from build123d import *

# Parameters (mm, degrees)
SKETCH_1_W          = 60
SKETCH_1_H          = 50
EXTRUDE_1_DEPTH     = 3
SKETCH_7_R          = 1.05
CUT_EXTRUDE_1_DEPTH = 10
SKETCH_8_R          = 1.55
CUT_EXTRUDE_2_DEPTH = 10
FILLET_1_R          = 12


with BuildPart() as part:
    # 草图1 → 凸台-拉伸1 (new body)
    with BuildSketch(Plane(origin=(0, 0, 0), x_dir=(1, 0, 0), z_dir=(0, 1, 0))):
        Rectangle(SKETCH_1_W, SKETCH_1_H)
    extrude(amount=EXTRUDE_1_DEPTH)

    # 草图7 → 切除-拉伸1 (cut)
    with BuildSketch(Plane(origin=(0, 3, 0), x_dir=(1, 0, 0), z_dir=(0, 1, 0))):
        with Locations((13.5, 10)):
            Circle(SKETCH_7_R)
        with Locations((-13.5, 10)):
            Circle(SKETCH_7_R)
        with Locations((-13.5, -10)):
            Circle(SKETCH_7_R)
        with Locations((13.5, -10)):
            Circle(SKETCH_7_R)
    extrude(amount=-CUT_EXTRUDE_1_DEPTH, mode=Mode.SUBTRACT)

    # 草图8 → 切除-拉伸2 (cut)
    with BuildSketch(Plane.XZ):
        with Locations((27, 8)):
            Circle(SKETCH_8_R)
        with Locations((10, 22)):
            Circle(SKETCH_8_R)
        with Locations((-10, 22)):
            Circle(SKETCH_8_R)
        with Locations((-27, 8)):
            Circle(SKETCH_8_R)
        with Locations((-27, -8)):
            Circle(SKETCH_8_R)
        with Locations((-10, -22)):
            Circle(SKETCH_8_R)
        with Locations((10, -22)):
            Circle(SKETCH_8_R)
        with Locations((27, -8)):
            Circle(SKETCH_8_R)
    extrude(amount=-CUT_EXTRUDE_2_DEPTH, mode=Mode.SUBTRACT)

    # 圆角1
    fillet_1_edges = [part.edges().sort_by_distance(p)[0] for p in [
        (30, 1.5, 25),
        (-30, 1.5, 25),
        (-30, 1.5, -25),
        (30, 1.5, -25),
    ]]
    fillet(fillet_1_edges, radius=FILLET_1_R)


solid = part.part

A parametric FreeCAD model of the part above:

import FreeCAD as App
import Part
import Sketcher

V = App.Vector
Q = App.Units.Quantity


def edges_at(feature, points):
    """Names of the edges that pass closest to the given points."""
    edges = feature.Shape.Edges
    near = lambda p: min(range(len(edges)), key=lambda i: edges[i].distToShape(Part.Vertex(*p))[0])
    return sorted({f"Edge{near(p) + 1}" for p in points})


def add_polygon(sketch, points):
    """Adds a closed chain of lines whose ends are joined by coincident constraints."""
    first, n = sketch.GeometryCount, len(points)
    for a, b in zip(points, points[1:] + points[:1]):
        sketch.addGeometry(Part.LineSegment(App.Vector(*a, 0), App.Vector(*b, 0)), False)
    for i in range(n):
        sketch.addConstraint(Sketcher.Constraint("Coincident", first + i, 2, first + (i + 1) % n, 1))

doc = App.newDocument("Part")
params = doc.addObject("Spreadsheet::Sheet", "Params")
for row, (alias, value) in enumerate([
    ("sketch1_width", "60 mm"),
    ("sketch1_height", "50 mm"),
    ("pad1_length", "3 mm"),
    ("sketch2_diameter", "2.1 mm"),
    ("pocket1_length", "10 mm"),
    ("sketch3_diameter", "3.1 mm"),
    ("pocket2_length", "10 mm"),
    ("fillet_radius", "12 mm"),
], start=1):
    params.set(f"A{row}", alias)
    params.set(f"B{row}", "=" + value)
    params.setAlias(f"B{row}", alias)

body = doc.addObject("PartDesign::Body", "Body")

sketch1 = body.newObject("Sketcher::SketchObject", "Sketch")
sketch1.AttachmentSupport = (doc.getObject("XZ_Plane"), [""])
sketch1.MapMode = "FlatFace"
add_polygon(sketch1, [(-30, -25), (-30, 25), (30, 25), (30, -25)])
sketch1.addConstraint([
    Sketcher.Constraint("Vertical", 0),
    Sketcher.Constraint("Horizontal", 1),
    Sketcher.Constraint("Vertical", 2),
    Sketcher.Constraint("Horizontal", 3),
    Sketcher.Constraint("Symmetric", 0, 2, 2, 2, -1, 1),
    Sketcher.Constraint("DistanceX", 1, 1, 1, 2, Q("60 mm")),
    Sketcher.Constraint("DistanceY", 0, 1, 0, 2, Q("50 mm")),
])
sketch1.setExpression("Constraints[9]", "Params.sketch1_width")
sketch1.setExpression("Constraints[10]", "Params.sketch1_height")
pad1 = body.newObject("PartDesign::Pad", "Pad")
pad1.Profile = sketch1
pad1.setExpression("Length", "Params.pad1_length")
pad1.Reversed = True

sketch2 = body.newObject("Sketcher::SketchObject", "Sketch001")
sketch2.AttachmentSupport = (doc.getObject("XZ_Plane"), [""])
sketch2.MapMode = "FlatFace"
sketch2.AttachmentOffset = App.Placement(V(0, 0, -3), App.Rotation())
sketch2.addGeometry([
    Part.Circle(V(13.5, -10, 0), V(0, 0, 1), 1.1),
    Part.Circle(V(-13.5, -10, 0), V(0, 0, 1), 1.1),
    Part.Circle(V(-13.5, 10, 0), V(0, 0, 1), 1.1),
    Part.Circle(V(13.5, 10, 0), V(0, 0, 1), 1.1),
], False)
sketch2.addConstraint([
    Sketcher.Constraint("Equal", 0, 1),
    Sketcher.Constraint("Equal", 1, 2),
    Sketcher.Constraint("Equal", 2, 3),
    Sketcher.Constraint("Symmetric", 0, 3, 2, 3, -1, 1),
    Sketcher.Constraint("Symmetric", 1, 3, 3, 3, -1, 1),
    Sketcher.Constraint("Symmetric", 0, 3, 1, 3, -2),
    Sketcher.Constraint("Diameter", 0, Q("2.1 mm")),
    Sketcher.Constraint("DistanceY", 0, 3, -1, 1, Q("10 mm")),
    Sketcher.Constraint("DistanceX", 1, 3, 0, 3, Q("27 mm")),
])
sketch2.setExpression("Constraints[6]", "Params.sketch2_diameter")
pocket1 = body.newObject("PartDesign::Pocket", "Pocket")
pocket1.Profile = sketch2
pocket1.setExpression("Length", "Params.pocket1_length")
pocket1.Reversed = True

sketch3 = body.newObject("Sketcher::SketchObject", "Sketch002")
sketch3.AttachmentSupport = (doc.getObject("XZ_Plane"), [""])
sketch3.MapMode = "FlatFace"
sketch3.addGeometry([
    Part.Circle(V(27, 8, 0), V(0, 0, 1), 1.6),
    Part.Circle(V(10, 22, 0), V(0, 0, 1), 1.6),
    Part.Circle(V(-10, 22, 0), V(0, 0, 1), 1.6),
    Part.Circle(V(-27, 8, 0), V(0, 0, 1), 1.6),
    Part.Circle(V(-27, -8, 0), V(0, 0, 1), 1.6),
    Part.Circle(V(-10, -22, 0), V(0, 0, 1), 1.6),
    Part.Circle(V(10, -22, 0), V(0, 0, 1), 1.6),
    Part.Circle(V(27, -8, 0), V(0, 0, 1), 1.6),
], False)
sketch3.addConstraint([
    Sketcher.Constraint("Equal", 0, 1),
    Sketcher.Constraint("Equal", 1, 2),
    Sketcher.Constraint("Equal", 2, 3),
    Sketcher.Constraint("Equal", 3, 4),
    Sketcher.Constraint("Equal", 4, 5),
    Sketcher.Constraint("Equal", 5, 6),
    Sketcher.Constraint("Equal", 6, 7),
    Sketcher.Constraint("Symmetric", 0, 3, 4, 3, -1, 1),
    Sketcher.Constraint("Symmetric", 1, 3, 5, 3, -1, 1),
    Sketcher.Constraint("Symmetric", 2, 3, 6, 3, -1, 1),
    Sketcher.Constraint("Symmetric", 3, 3, 7, 3, -1, 1),
    Sketcher.Constraint("Symmetric", 1, 3, 2, 3, -2),
    Sketcher.Constraint("Symmetric", 0, 3, 3, 3, -2),
    Sketcher.Constraint("Diameter", 0, Q("3.1 mm")),
    Sketcher.Constraint("DistanceX", -1, 1, 0, 3, Q("27 mm")),
    Sketcher.Constraint("DistanceY", -1, 1, 0, 3, Q("8 mm")),
    Sketcher.Constraint("DistanceX", -1, 1, 1, 3, Q("10 mm")),
    Sketcher.Constraint("DistanceY", -1, 1, 1, 3, Q("22 mm")),
])
sketch3.setExpression("Constraints[13]", "Params.sketch3_diameter")
pocket2 = body.newObject("PartDesign::Pocket", "Pocket001")
pocket2.Profile = sketch3
pocket2.setExpression("Length", "Params.pocket2_length")
doc.recompute()

fillet = body.newObject("PartDesign::Fillet", "Fillet")
fillet.Base = (pocket2, edges_at(pocket2, [
    (30, 1.5, 25),
    (-30, 1.5, 25),
    (-30, 1.5, -25),
    (30, 1.5, -25),
]))
fillet.setExpression("Radius", "Params.fillet_radius")

doc.recompute()
